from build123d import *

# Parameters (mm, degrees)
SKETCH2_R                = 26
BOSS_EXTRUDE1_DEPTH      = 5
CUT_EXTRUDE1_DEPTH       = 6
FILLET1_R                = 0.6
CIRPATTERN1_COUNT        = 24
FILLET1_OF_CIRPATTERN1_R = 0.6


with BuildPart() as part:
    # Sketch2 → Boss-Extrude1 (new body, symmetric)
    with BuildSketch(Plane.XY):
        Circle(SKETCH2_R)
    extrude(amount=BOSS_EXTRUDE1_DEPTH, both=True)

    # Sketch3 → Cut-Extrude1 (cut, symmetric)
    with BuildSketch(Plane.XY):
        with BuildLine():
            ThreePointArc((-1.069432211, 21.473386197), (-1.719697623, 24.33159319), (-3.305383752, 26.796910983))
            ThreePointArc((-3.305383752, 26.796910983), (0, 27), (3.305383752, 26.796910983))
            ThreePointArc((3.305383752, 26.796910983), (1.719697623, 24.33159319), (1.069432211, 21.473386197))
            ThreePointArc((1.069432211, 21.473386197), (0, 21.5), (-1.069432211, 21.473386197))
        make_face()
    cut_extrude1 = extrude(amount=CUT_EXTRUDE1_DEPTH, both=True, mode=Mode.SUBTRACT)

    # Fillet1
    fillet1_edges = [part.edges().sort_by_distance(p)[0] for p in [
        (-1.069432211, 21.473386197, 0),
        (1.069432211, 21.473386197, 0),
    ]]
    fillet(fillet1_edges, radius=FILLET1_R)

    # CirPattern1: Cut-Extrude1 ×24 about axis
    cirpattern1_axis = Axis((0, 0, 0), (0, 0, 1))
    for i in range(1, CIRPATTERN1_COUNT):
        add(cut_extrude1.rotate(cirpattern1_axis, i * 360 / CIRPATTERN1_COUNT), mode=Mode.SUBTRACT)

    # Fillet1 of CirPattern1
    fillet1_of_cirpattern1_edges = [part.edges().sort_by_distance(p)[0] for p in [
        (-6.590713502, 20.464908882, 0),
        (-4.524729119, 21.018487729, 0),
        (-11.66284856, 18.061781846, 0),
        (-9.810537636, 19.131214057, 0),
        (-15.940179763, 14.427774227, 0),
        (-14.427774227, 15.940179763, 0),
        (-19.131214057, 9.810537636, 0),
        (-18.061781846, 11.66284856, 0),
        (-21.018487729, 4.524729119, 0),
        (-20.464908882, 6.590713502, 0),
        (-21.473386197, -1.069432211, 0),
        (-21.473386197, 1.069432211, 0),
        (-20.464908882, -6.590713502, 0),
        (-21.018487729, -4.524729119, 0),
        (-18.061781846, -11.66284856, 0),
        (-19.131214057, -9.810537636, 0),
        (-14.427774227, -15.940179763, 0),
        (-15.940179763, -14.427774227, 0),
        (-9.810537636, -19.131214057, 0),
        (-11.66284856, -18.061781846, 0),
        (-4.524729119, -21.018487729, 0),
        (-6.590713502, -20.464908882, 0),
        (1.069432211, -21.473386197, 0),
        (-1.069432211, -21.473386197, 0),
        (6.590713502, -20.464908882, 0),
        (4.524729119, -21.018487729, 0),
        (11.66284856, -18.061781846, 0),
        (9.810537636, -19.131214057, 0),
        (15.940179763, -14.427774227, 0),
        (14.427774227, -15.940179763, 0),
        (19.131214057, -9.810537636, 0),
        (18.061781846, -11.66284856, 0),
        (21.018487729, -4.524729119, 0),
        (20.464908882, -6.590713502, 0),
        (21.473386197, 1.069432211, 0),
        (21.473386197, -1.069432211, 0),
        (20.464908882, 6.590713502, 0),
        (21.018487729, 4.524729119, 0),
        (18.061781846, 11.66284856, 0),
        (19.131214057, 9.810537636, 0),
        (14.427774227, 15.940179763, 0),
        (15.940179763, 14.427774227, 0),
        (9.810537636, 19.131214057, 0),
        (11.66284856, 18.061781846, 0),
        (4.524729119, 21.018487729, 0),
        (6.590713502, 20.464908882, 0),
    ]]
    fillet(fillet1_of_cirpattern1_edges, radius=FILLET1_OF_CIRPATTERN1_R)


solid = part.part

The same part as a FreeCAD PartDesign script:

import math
import FreeCAD as App
import Part
import Sketcher


def edges_at(feature, points):
    """Names of the edges that pass closest to the given points."""
    edges = feature.Shape.Edges
    near = lambda p: min(range(len(edges)), key=lambda i: edges[i].distToShape(Part.Vertex(*p))[0])
    return sorted({f"Edge{near(p) + 1}" for p in points})

doc = App.newDocument("Part")
body = doc.addObject("PartDesign::Body", "Body")

# Sketch on XY plane
sketch1 = doc.addObject("Sketcher::SketchObject", "Sketch")
body.addObject(sketch1)
sketch1.AttachmentSupport = (doc.XY_Plane, [""])
sketch1.MapMode = "FlatFace"
sketch1.addGeometry(Part.Circle(App.Vector(0, 0, 0), App.Vector(0, 0, 1), 26), False)
sketch1.addConstraint([
    Sketcher.Constraint("Coincident", 0, 3, -1, 1),
    Sketcher.Constraint("Diameter", 0, 52.0),
])
pad1 = doc.addObject("PartDesign::Pad", "Pad")
body.addObject(pad1)
pad1.Profile = sketch1
pad1.Length = 10
pad1.Midplane = True

# Sketch on XY plane
sketch2 = doc.addObject("Sketcher::SketchObject", "Sketch001")
body.addObject(sketch2)
sketch2.AttachmentSupport = (doc.XY_Plane, [""])
sketch2.MapMode = "FlatFace"
sketch2.addGeometry([
    Part.ArcOfCircle(Part.Circle(App.Vector(-9.5, 21.1, 0), App.Vector(0, 0, 1), 8.5), math.radians(3), math.radians(43)),
    Part.ArcOfCircle(Part.Circle(App.Vector(0, 0, 0), App.Vector(0, 0, 1), 21.5), math.radians(87.15), math.radians(92.85)),
    Part.ArcOfCircle(Part.Circle(App.Vector(9.5, 21.1, 0), App.Vector(0, 0, 1), 8.5), math.radians(137), math.radians(177)),
    Part.ArcOfCircle(Part.Circle(App.Vector(0, 0, 0), App.Vector(0, 0, 1), 27), math.radians(82.97), math.radians(97.03)),
], False)
sketch2.addConstraint([
    Sketcher.Constraint("Coincident", 0, 1, 1, 2),
    Sketcher.Constraint("Coincident", 1, 1, 2, 2),
    Sketcher.Constraint("Coincident", 2, 1, 3, 1),
    Sketcher.Constraint("Coincident", 3, 2, 0, 2),
    Sketcher.Constraint("Coincident", 1, 3, -1, 1),
    Sketcher.Constraint("Coincident", 3, 3, -1, 1),
    Sketcher.Constraint("Equal", 0, 2),
    Sketcher.Constraint("Symmetric", 0, 3, 2, 3, -2),
    Sketcher.Constraint("Radius", 3, 27.0),
    Sketcher.Constraint("Radius", 1, 21.5),
    Sketcher.Constraint("Radius", 0, 8.468713),
    Sketcher.Constraint("DistanceY", -1, 1, 2, 1, 26.796911),
    Sketcher.Constraint("DistanceX", 0, 3, 0, 1, 8.45823),
])
pocket1 = doc.addObject("PartDesign::Pocket", "Pocket")
body.addObject(pocket1)
pocket1.Profile = sketch2
pocket1.Length = 12
pocket1.Midplane = True
doc.recompute()

fillet = doc.addObject("PartDesign::Fillet", "Fillet")
body.addObject(fillet)
fillet.Base = (pocket1, edges_at(pocket1, [(-1.069, 21.473, 0), (1.069, 21.473, 0)]))
fillet.Radius = 0.6
doc.recompute()

polarpattern = doc.addObject("PartDesign::PolarPattern", "PolarPattern")
body.addObject(polarpattern)
polarpattern.Originals = [pocket1]
polarpattern.Axis = (doc.Z_Axis, [""])
polarpattern.Angle = 360
polarpattern.Occurrences = 24
body.Tip = polarpattern
doc.recompute()

fillet2 = doc.addObject("PartDesign::Fillet", "Fillet001")
body.addObject(fillet2)
fillet2.Base = (polarpattern, edges_at(polarpattern, [
    (-6.591, 20.465, 0),
    (-4.525, 21.018, 0),
    (-11.663, 18.062, 0),
    (-9.811, 19.131, 0),
    (-15.94, 14.428, 0),
    (-14.428, 15.94, 0),
    (-19.131, 9.811, 0),
    (-18.062, 11.663, 0),
    (-21.018, 4.525, 0),
    (-20.465, 6.591, 0),
    (-21.473, -1.069, 0),
    (-21.473, 1.069, 0),
    (-20.465, -6.591, 0),
    (-21.018, -4.525, 0),
    (-18.062, -11.663, 0),
    (-19.131, -9.811, 0),
    (-14.428, -15.94, 0),
    (-15.94, -14.428, 0),
    (-9.811, -19.131, 0),
    (-11.663, -18.062, 0),
    (-4.525, -21.018, 0),
    (-6.591, -20.465, 0),
    (1.069, -21.473, 0),
    (-1.069, -21.473, 0),
    (6.591, -20.465, 0),
    (4.525, -21.018, 0),
    (11.663, -18.062, 0),
    (9.811, -19.131, 0),
    (15.94, -14.428, 0),
    (14.428, -15.94, 0),
    (19.131, -9.811, 0),
    (18.062, -11.663, 0),
    (21.018, -4.525, 0),
    (20.465, -6.591, 0),
    (21.473, 1.069, 0),
    (21.473, -1.069, 0),
    (20.465, 6.591, 0),
    (21.018, 4.525, 0),
    (18.062, 11.663, 0),
    (19.131, 9.811, 0),
    (14.428, 15.94, 0),
    (15.94, 14.428, 0),
    (9.811, 19.131, 0),
    (11.663, 18.062, 0),
    (4.525, 21.018, 0),
    (6.591, 20.465, 0),
]))
fillet2.Radius = 0.6

doc.recompute()
